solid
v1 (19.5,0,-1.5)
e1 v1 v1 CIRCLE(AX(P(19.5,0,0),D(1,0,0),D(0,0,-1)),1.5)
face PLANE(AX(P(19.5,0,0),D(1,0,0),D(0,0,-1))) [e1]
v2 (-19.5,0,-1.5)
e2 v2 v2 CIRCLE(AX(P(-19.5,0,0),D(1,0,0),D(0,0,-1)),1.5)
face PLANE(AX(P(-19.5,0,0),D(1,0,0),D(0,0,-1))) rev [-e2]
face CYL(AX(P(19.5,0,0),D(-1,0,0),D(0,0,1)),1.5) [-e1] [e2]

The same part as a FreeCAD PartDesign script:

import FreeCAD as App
import Part
import Sketcher
from FreeCAD import Vector
Q = App.Units.Quantity

doc = App.newDocument("Part")
body = doc.addObject("PartDesign::Body", "Body")

# Sketch on YZ plane
sketch1 = body.newObject("Sketcher::SketchObject", "Sketch")
sketch1.AttachmentSupport = (doc.getObject("YZ_Plane"), [""])
sketch1.MapMode = "FlatFace"
sketch1.addGeometry(Part.Circle(Vector(0, 0, 0), Vector(0, 0, 1), 1.5), False)
sketch1.addConstraint(Sketcher.Constraint("Coincident", 0, 3, -1, 1))
sketch1.addConstraint(Sketcher.Constraint("Diameter", 0, Q("3 mm")))
pad1 = body.newObject("PartDesign::Pad", "Pad")
pad1.Profile = sketch1
pad1.Length = 39
pad1.Midplane = True

doc.recompute()
